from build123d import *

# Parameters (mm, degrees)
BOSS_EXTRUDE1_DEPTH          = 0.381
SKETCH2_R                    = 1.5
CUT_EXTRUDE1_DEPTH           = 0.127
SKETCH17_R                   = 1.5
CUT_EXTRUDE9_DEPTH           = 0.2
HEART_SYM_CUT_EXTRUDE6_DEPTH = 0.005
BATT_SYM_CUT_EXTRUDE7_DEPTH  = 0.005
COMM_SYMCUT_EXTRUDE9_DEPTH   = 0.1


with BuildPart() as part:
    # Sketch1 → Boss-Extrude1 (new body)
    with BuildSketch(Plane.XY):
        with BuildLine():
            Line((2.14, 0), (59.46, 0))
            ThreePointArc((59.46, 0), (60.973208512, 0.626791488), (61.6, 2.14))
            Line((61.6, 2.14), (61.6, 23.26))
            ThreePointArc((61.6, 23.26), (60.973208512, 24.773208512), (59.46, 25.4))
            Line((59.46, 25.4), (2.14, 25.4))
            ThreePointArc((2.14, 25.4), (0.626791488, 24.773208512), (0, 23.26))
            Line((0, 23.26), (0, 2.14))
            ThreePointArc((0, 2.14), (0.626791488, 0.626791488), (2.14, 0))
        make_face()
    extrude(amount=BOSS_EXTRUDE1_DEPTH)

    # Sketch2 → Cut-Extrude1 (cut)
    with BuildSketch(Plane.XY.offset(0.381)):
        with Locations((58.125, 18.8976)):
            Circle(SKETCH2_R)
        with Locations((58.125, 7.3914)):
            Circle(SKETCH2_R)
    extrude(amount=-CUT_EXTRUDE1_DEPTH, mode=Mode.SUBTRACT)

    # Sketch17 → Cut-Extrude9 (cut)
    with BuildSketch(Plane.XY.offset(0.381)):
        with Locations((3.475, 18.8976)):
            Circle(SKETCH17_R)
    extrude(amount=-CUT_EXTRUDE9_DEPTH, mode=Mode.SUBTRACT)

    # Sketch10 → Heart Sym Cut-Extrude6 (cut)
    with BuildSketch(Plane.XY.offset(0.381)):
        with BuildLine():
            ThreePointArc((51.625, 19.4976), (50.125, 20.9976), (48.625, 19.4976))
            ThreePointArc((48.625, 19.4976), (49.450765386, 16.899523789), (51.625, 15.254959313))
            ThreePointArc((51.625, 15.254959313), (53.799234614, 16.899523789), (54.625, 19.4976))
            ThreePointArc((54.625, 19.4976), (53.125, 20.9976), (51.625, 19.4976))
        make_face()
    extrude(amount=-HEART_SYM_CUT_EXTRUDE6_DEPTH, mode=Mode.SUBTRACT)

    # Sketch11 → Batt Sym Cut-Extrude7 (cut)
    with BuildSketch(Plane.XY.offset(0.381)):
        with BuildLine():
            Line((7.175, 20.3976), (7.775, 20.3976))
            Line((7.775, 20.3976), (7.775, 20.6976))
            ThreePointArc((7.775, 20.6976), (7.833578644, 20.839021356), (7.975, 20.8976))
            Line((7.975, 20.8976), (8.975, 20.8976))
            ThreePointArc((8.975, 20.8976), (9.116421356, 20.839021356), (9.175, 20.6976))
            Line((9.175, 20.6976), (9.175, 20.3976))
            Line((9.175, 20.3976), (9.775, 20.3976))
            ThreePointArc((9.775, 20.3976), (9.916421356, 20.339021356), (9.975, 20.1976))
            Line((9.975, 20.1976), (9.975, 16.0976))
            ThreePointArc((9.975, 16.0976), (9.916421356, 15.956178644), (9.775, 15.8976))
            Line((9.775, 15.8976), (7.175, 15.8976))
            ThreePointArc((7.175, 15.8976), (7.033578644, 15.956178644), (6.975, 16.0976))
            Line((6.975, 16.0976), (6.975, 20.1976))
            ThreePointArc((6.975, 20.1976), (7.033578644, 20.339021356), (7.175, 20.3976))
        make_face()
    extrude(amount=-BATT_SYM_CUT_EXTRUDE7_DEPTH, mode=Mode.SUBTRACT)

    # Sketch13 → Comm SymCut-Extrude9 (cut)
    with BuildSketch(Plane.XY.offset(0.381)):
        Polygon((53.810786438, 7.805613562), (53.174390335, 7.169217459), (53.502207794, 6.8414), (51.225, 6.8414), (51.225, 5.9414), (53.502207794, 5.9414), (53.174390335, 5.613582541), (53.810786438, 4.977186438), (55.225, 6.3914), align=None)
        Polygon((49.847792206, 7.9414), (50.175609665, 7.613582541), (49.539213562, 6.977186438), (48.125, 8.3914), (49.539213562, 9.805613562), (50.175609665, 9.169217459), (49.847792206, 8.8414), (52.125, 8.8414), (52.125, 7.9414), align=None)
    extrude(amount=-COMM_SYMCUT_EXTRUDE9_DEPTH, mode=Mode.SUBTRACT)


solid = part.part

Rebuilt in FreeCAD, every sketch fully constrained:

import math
import FreeCAD as App
import Part
import Sketcher

V = App.Vector
Q = App.Units.Quantity


def add_polygon(sketch, points):
    """Adds a closed chain of lines whose ends are joined by coincident constraints."""
    first, n = sketch.GeometryCount, len(points)
    for a, b in zip(points, points[1:] + points[:1]):
        sketch.addGeometry(Part.LineSegment(App.Vector(*a, 0), App.Vector(*b, 0)), False)
    for i in range(n):
        sketch.addConstraint(Sketcher.Constraint("Coincident", first + i, 2, first + (i + 1) % n, 1))

doc = App.newDocument("Part")
body = doc.addObject("PartDesign::Body", "Body")

# Sketch on XY plane
sketch1 = doc.addObject("Sketcher::SketchObject", "Sketch")
body.addObject(sketch1)
sketch1.AttachmentSupport = (doc.XY_Plane, [""])
sketch1.MapMode = "FlatFace"
sketch1.addGeometry(Part.LineSegment(V(2.14, 0, 0), V(59.46, 0, 0)), False)
sketch1.addGeometry(Part.ArcOfCircle(Part.Circle(V(59.46, 2.14, 0), V(0, 0, 1), 2.14), math.radians(-90), math.radians(0)), False)
sketch1.addGeometry(Part.LineSegment(V(61.6, 2.14, 0), V(61.6, 23.26, 0)), False)
sketch1.addGeometry(Part.ArcOfCircle(Part.Circle(V(59.46, 23.26, 0), V(0, 0, 1), 2.14), math.radians(0), math.radians(90)), False)
sketch1.addGeometry(Part.LineSegment(V(59.46, 25.4, 0), V(2.14, 25.4, 0)), False)
sketch1.addGeometry(Part.ArcOfCircle(Part.Circle(V(2.14, 23.26, 0), V(0, 0, 1), 2.14), math.radians(90), math.radians(180)), False)
sketch1.addGeometry(Part.LineSegment(V(0, 23.26, 0), V(0, 2.14, 0)), False)
sketch1.addGeometry(Part.ArcOfCircle(Part.Circle(V(2.14, 2.14, 0), V(0, 0, 1), 2.14), math.radians(180), math.radians(270)), False)
sketch1.addConstraint(Sketcher.Constraint("Tangent", 0, 2, 1, 1))
sketch1.addConstraint(Sketcher.Constraint("Tangent", 1, 2, 2, 1))
sketch1.addConstraint(Sketcher.Constraint("Tangent", 2, 2, 3, 1))
sketch1.addConstraint(Sketcher.Constraint("Tangent", 3, 2, 4, 1))
sketch1.addConstraint(Sketcher.Constraint("Tangent", 4, 2, 5, 1))
sketch1.addConstraint(Sketcher.Constraint("Tangent", 5, 2, 6, 1))
sketch1.addConstraint(Sketcher.Constraint("Tangent", 6, 2, 7, 1))
sketch1.addConstraint(Sketcher.Constraint("Tangent", 7, 2, 0, 1))
sketch1.addConstraint(Sketcher.Constraint("Horizontal", 0))
sketch1.addConstraint(Sketcher.Constraint("Vertical", 2))
sketch1.addConstraint(Sketcher.Constraint("Horizontal", 4))
sketch1.addConstraint(Sketcher.Constraint("Vertical", 6))
sketch1.addConstraint(Sketcher.Constraint("Equal", 1, 3))
sketch1.addConstraint(Sketcher.Constraint("Equal", 3, 5))
sketch1.addConstraint(Sketcher.Constraint("Equal", 5, 7))
sketch1.addConstraint(Sketcher.Constraint("PointOnObject", 0, 2, -1))
sketch1.addConstraint(Sketcher.Constraint("PointOnObject", 5, 2, -2))
sketch1.addConstraint(Sketcher.Constraint("Radius", 1, Q("2.14 mm")))
sketch1.addConstraint(Sketcher.Constraint("DistanceX", 0, 1, 0, 2, Q("57.32 mm")))
sketch1.addConstraint(Sketcher.Constraint("DistanceY", 2, 1, 2, 2, Q("21.12 mm")))
pad1 = doc.addObject("PartDesign::Pad", "Pad")
body.addObject(pad1)
pad1.Profile = sketch1
pad1.Length = 0.381

# Sketch on XY plane
sketch2 = doc.addObject("Sketcher::SketchObject", "Sketch001")
body.addObject(sketch2)
sketch2.AttachmentSupport = (doc.XY_Plane, [""])
sketch2.MapMode = "FlatFace"
sketch2.AttachmentOffset = App.Placement(V(0, 0, 0.381), App.Rotation())
sketch2.addGeometry(Part.Circle(V(58.125, 18.8976, 0), V(0, 0, 1), 1.5), False)
sketch2.addGeometry(Part.Circle(V(58.125, 7.3914, 0), V(0, 0, 1), 1.5), False)
sketch2.addConstraint(Sketcher.Constraint("Equal", 0, 1))
sketch2.addConstraint(Sketcher.Constraint("Vertical", 0, 3, 1, 3))
sketch2.addConstraint(Sketcher.Constraint("Diameter", 0, Q("3 mm")))
sketch2.addConstraint(Sketcher.Constraint("DistanceX", -1, 1, 0, 3, Q("58.125 mm")))
sketch2.addConstraint(Sketcher.Constraint("DistanceY", -1, 1, 0, 3, Q("18.8976 mm")))
sketch2.addConstraint(Sketcher.Constraint("DistanceY", -1, 1, 1, 3, Q("7.3914 mm")))
pocket1 = doc.addObject("PartDesign::Pocket", "Pocket")
body.addObject(pocket1)
pocket1.Profile = sketch2
pocket1.Length = 0.127

# Sketch on XY plane
sketch3 = doc.addObject("Sketcher::SketchObject", "Sketch002")
body.addObject(sketch3)
sketch3.AttachmentSupport = (doc.XY_Plane, [""])
sketch3.MapMode = "FlatFace"
sketch3.AttachmentOffset = App.Placement(V(0, 0, 0.381), App.Rotation())
sketch3.addGeometry(Part.Circle(V(3.475, 18.8976, 0), V(0, 0, 1), 1.5), False)
sketch3.addConstraint(Sketcher.Constraint("Diameter", 0, Q("3 mm")))
sketch3.addConstraint(Sketcher.Constraint("DistanceX", -1, 1, 0, 3, Q("3.475 mm")))
sketch3.addConstraint(Sketcher.Constraint("DistanceY", -1, 1, 0, 3, Q("18.8976 mm")))
pocket2 = doc.addObject("PartDesign::Pocket", "Pocket001")
body.addObject(pocket2)
pocket2.Profile = sketch3
pocket2.Length = 0.2

# Sketch on XY plane
sketch4 = doc.addObject("Sketcher::SketchObject", "Sketch003")
body.addObject(sketch4)
sketch4.AttachmentSupport = (doc.XY_Plane, [""])
sketch4.MapMode = "FlatFace"
sketch4.AttachmentOffset = App.Placement(V(0, 0, 0.381), App.Rotation())
sketch4.addGeometry(Part.ArcOfCircle(Part.Circle(V(50.125, 19.4976, 0), V(0, 0, 1), 1.5), math.radians(0), math.radians(180)), False)
sketch4.addGeometry(Part.ArcOfCircle(Part.Circle(V(53.125, 19.4976, 0), V(0, 0, 1), 4.5), math.radians(-180), math.radians(-109.471221)), False)
sketch4.addGeometry(Part.ArcOfCircle(Part.Circle(V(50.125, 19.4976, 0), V(0, 0, 1), 4.5), math.radians(-70.528779), math.radians(0)), False)
sketch4.addGeometry(Part.ArcOfCircle(Part.Circle(V(53.125, 19.4976, 0), V(0, 0, 1), 1.5), math.radians(0), math.radians(180)), False)
sketch4.addConstraint(Sketcher.Constraint("Tangent", 0, 2, 1, 1))
sketch4.addConstraint(Sketcher.Constraint("Coincident", 1, 2, 2, 1))
sketch4.addConstraint(Sketcher.Constraint("Tangent", 2, 2, 3, 1))
sketch4.addConstraint(Sketcher.Constraint("Tangent", 3, 2, 0, 1))
sketch4.addConstraint(Sketcher.Constraint("Coincident", 2, 3, 0, 3))
sketch4.addConstraint(Sketcher.Constraint("Coincident", 3, 3, 1, 3))
sketch4.addConstraint(Sketcher.Constraint("Equal", 1, 2))
sketch4.addConstraint(Sketcher.Constraint("Horizontal", 0, 3, 1, 3))
sketch4.addConstraint(Sketcher.Constraint("Radius", 0, Q("1.5 mm")))
sketch4.addConstraint(Sketcher.Constraint("DistanceX", -1, 1, 0, 3, Q("50.125 mm")))
sketch4.addConstraint(Sketcher.Constraint("DistanceY", -1, 1, 0, 3, Q("19.4976 mm")))
pocket3 = doc.addObject("PartDesign::Pocket", "Pocket002")
body.addObject(pocket3)
pocket3.Profile = sketch4
pocket3.Length = 0.005

# Sketch on XY plane
sketch5 = doc.addObject("Sketcher::SketchObject", "Sketch004")
body.addObject(sketch5)
sketch5.AttachmentSupport = (doc.XY_Plane, [""])
sketch5.MapMode = "FlatFace"
sketch5.AttachmentOffset = App.Placement(V(0, 0, 0.381), App.Rotation())
sketch5.addGeometry(Part.LineSegment(V(7.775, 20.3976, 0), V(7.175, 20.3976, 0)), False)
sketch5.addGeometry(Part.ArcOfCircle(Part.Circle(V(7.175, 20.1976, 0), V(0, 0, 1), 0.2), math.radians(90), math.radians(180)), False)
sketch5.addGeometry(Part.LineSegment(V(6.975, 20.1976, 0), V(6.975, 16.0976, 0)), False)
sketch5.addGeometry(Part.ArcOfCircle(Part.Circle(V(7.175, 16.0976, 0), V(0, 0, 1), 0.2), math.radians(-180), math.radians(-90)), False)
sketch5.addGeometry(Part.LineSegment(V(7.175, 15.8976, 0), V(9.775, 15.8976, 0)), False)
sketch5.addGeometry(Part.ArcOfCircle(Part.Circle(V(9.775, 16.0976, 0), V(0, 0, 1), 0.2), math.radians(-90), math.radians(0)), False)
sketch5.addGeometry(Part.LineSegment(V(9.975, 16.0976, 0), V(9.975, 20.1976, 0)), False)
sketch5.addGeometry(Part.ArcOfCircle(Part.Circle(V(9.775, 20.1976, 0), V(0, 0, 1), 0.2), math.radians(0), math.radians(90)), False)
sketch5.addGeometry(Part.LineSegment(V(9.775, 20.3976, 0), V(9.175, 20.3976, 0)), False)
sketch5.addGeometry(Part.LineSegment(V(9.175, 20.3976, 0), V(9.175, 20.6976, 0)), False)
sketch5.addGeometry(Part.ArcOfCircle(Part.Circle(V(8.975, 20.6976, 0), V(0, 0, 1), 0.2), math.radians(0), math.radians(90)), False)
sketch5.addGeometry(Part.LineSegment(V(8.975, 20.8976, 0), V(7.975, 20.8976, 0)), False)
sketch5.addGeometry(Part.ArcOfCircle(Part.Circle(V(7.975, 20.6976, 0), V(0, 0, 1), 0.2), math.radians(90), math.radians(180)), False)
sketch5.addGeometry(Part.LineSegment(V(7.775, 20.6976, 0), V(7.775, 20.3976, 0)), False)
sketch5.addConstraint(Sketcher.Constraint("Tangent", 0, 2, 1, 1))
sketch5.addConstraint(Sketcher.Constraint("Tangent", 1, 2, 2, 1))
sketch5.addConstraint(Sketcher.Constraint("Tangent", 2, 2, 3, 1))
sketch5.addConstraint(Sketcher.Constraint("Tangent", 3, 2, 4, 1))
sketch5.addConstraint(Sketcher.Constraint("Tangent", 4, 2, 5, 1))
sketch5.addConstraint(Sketcher.Constraint("Tangent", 5, 2, 6, 1))
sketch5.addConstraint(Sketcher.Constraint("Tangent", 6, 2, 7, 1))
sketch5.addConstraint(Sketcher.Constraint("Tangent", 7, 2, 8, 1))
sketch5.addConstraint(Sketcher.Constraint("Coincident", 8, 2, 9, 1))
sketch5.addConstraint(Sketcher.Constraint("Tangent", 9, 2, 10, 1))
sketch5.addConstraint(Sketcher.Constraint("Tangent", 10, 2, 11, 1))
sketch5.addConstraint(Sketcher.Constraint("Tangent", 11, 2, 12, 1))
sketch5.addConstraint(Sketcher.Constraint("Tangent", 12, 2, 13, 1))
sketch5.addConstraint(Sketcher.Constraint("Coincident", 13, 2, 0, 1))
sketch5.addConstraint(Sketcher.Constraint("Horizontal", 0))
sketch5.addConstraint(Sketcher.Constraint("Vertical", 2))
sketch5.addConstraint(Sketcher.Constraint("Horizontal", 4))
sketch5.addConstraint(Sketcher.Constraint("Vertical", 6))
sketch5.addConstraint(Sketcher.Constraint("Horizontal", 8))
sketch5.addConstraint(Sketcher.Constraint("Vertical", 9))
sketch5.addConstraint(Sketcher.Constraint("Horizontal", 11))
sketch5.addConstraint(Sketcher.Constraint("Vertical", 13))
sketch5.addConstraint(Sketcher.Constraint("Equal", 1, 3))
sketch5.addConstraint(Sketcher.Constraint("Equal", 3, 5))
sketch5.addConstraint(Sketcher.Constraint("Equal", 5, 7))
sketch5.addConstraint(Sketcher.Constraint("Equal", 7, 10))
sketch5.addConstraint(Sketcher.Constraint("Equal", 10, 12))
sketch5.addConstraint(Sketcher.Constraint("Horizontal", 1, 3, 7, 3))
sketch5.addConstraint(Sketcher.Constraint("Equal", 0, 8))
sketch5.addConstraint(Sketcher.Constraint("Radius", 1, Q("0.2 mm")))
sketch5.addConstraint(Sketcher.Constraint("DistanceX", 11, 2, 11, 1, Q("1 mm")))
sketch5.addConstraint(Sketcher.Constraint("DistanceX", 0, 2, 0, 1, Q("0.6 mm")))
sketch5.addConstraint(Sketcher.Constraint("DistanceY", 2, 2, 2, 1, Q("4.1 mm")))
sketch5.addConstraint(Sketcher.Constraint("DistanceY", 9, 1, 9, 2, Q("0.3 mm")))
sketch5.addConstraint(Sketcher.Constraint("DistanceX", -1, 1, 1, 3, Q("7.175 mm")))
sketch5.addConstraint(Sketcher.Constraint("DistanceY", -1, 1, 1, 3, Q("20.1976 mm")))
pocket4 = doc.addObject("PartDesign::Pocket", "Pocket003")
body.addObject(pocket4)
pocket4.Profile = sketch5
pocket4.Length = 0.005

# Sketch on XY plane
sketch6 = doc.addObject("Sketcher::SketchObject", "Sketch005")
body.addObject(sketch6)
sketch6.AttachmentSupport = (doc.XY_Plane, [""])
sketch6.MapMode = "FlatFace"
sketch6.AttachmentOffset = App.Placement(V(0, 0, 0.381), App.Rotation())
add_polygon(sketch6, [(53.810786, 7.805614), (53.17439, 7.169217), (53.502208, 6.8414), (51.225, 6.8414), (51.225, 5.9414), (53.502208, 5.9414), (53.17439, 5.613583), (53.810786, 4.977186), (55.225, 6.3914)])  # lines 0-8
add_polygon(sketch6, [(50.17561, 7.613583), (49.847792, 7.9414), (52.125, 7.9414), (52.125, 8.8414), (49.847792, 8.8414), (50.17561, 9.169217), (49.539214, 9.805614), (48.125, 8.3914), (49.539214, 6.977186)])  # lines 9-17
sketch6.addConstraint(Sketcher.Constraint("Horizontal", 2))
sketch6.addConstraint(Sketcher.Constraint("Vertical", 3))
sketch6.addConstraint(Sketcher.Constraint("Horizontal", 4))
sketch6.addConstraint(Sketcher.Constraint("Horizontal", 10))
sketch6.addConstraint(Sketcher.Constraint("Vertical", 11))
sketch6.addConstraint(Sketcher.Constraint("Horizontal", 12))
sketch6.addConstraint(Sketcher.Constraint("Perpendicular", 0, 1))
sketch6.addConstraint(Sketcher.Constraint("Perpendicular", 1, 5))
sketch6.addConstraint(Sketcher.Constraint("Perpendicular", 5, 6))
sketch6.addConstraint(Sketcher.Constraint("Perpendicular", 6, 7))
sketch6.addConstraint(Sketcher.Constraint("Perpendicular", 7, 8))
sketch6.addConstraint(Sketcher.Constraint("Parallel", 8, 9))
sketch6.addConstraint(Sketcher.Constraint("Perpendicular", 9, 13))
sketch6.addConstraint(Sketcher.Constraint("Perpendicular", 13, 14))
sketch6.addConstraint(Sketcher.Constraint("Perpendicular", 14, 15))
sketch6.addConstraint(Sketcher.Constraint("Perpendicular", 15, 16))
sketch6.addConstraint(Sketcher.Constraint("Perpendicular", 16, 17))
sketch6.addConstraint(Sketcher.Constraint("Vertical", 1, 2, 4, 2))
sketch6.addConstraint(Sketcher.Constraint("Vertical", 0, 2, 5, 2))
sketch6.addConstraint(Sketcher.Constraint("Vertical", 6, 2, 8, 2))
sketch6.addConstraint(Sketcher.Constraint("Vertical", 9, 2, 12, 2))
sketch6.addConstraint(Sketcher.Constraint("Vertical", 14, 2, 16, 2))
sketch6.addConstraint(Sketcher.Constraint("Vertical", 13, 2, 17, 2))
sketch6.addConstraint(Sketcher.Constraint("Equal", 4, 10))
sketch6.addConstraint(Sketcher.Constraint("Equal", 3, 11))
sketch6.addConstraint(Sketcher.Constraint("Equal", 1, 5))
sketch6.addConstraint(Sketcher.Constraint("Equal", 5, 9))
sketch6.addConstraint(Sketcher.Constraint("Equal", 6, 14))
sketch6.addConstraint(Sketcher.Constraint("Distance", 7, Q("2 mm")))
sketch6.addConstraint(Sketcher.Constraint("DistanceY", 3, 2, 3, 1, Q("0.9 mm")))
sketch6.addConstraint(Sketcher.Constraint("DistanceY", 3, 2, 9, 2, Q("2 mm")))
sketch6.addConstraint(Sketcher.Constraint("Distance", 0, Q("0.9 mm")))
sketch6.addConstraint(Sketcher.Constraint("DistanceX", 2, 2, 10, 2, Q("0.9 mm")))
sketch6.addConstraint(Sketcher.Constraint("DistanceX", 15, 2, 2, 2, Q("3.1 mm")))
sketch6.addConstraint(Sketcher.Constraint("DistanceX", -1, 1, 2, 2, Q("51.225 mm")))
sketch6.addConstraint(Sketcher.Constraint("DistanceY", -1, 1, 1, 2, Q("6.8414 mm")))
pocket5 = doc.addObject("PartDesign::Pocket", "Pocket004")
body.addObject(pocket5)
pocket5.Profile = sketch6
pocket5.Length = 0.1

doc.recompute()
